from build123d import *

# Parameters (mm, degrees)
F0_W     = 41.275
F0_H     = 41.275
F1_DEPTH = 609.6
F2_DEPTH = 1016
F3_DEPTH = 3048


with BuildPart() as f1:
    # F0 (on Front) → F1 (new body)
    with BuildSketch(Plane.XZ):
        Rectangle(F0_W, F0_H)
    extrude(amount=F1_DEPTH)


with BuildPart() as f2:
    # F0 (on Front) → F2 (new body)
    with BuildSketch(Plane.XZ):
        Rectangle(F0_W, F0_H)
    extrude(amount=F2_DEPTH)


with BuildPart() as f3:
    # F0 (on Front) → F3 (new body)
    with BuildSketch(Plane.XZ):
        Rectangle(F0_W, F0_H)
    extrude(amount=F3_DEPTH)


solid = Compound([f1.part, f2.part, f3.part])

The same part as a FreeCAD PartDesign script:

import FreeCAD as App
import Part
import Sketcher
Q = App.Units.Quantity

doc = App.newDocument("Part")
body = doc.addObject("PartDesign::Body", "Body")

# Sketch on XZ plane
sketch1 = body.newObject("Sketcher::SketchObject", "Sketch")
sketch1.AttachmentSupport = (doc.getObject("XZ_Plane"), [""])
sketch1.MapMode = "FlatFace"
sketch1.addGeometry([
    Part.LineSegment(App.Vector(-21, 21, 0), App.Vector(-21, -21, 0)),
    Part.LineSegment(App.Vector(-21, -21, 0), App.Vector(21, -21, 0)),
    Part.LineSegment(App.Vector(21, -21, 0), App.Vector(21, 21, 0)),
    Part.LineSegment(App.Vector(21, 21, 0), App.Vector(-21, 21, 0)),
], False)
sketch1.addConstraint([
    Sketcher.Constraint("Coincident", 0, 2, 1, 1),
    Sketcher.Constraint("Coincident", 1, 2, 2, 1),
    Sketcher.Constraint("Coincident", 2, 2, 3, 1),
    Sketcher.Constraint("Coincident", 3, 2, 0, 1),
    Sketcher.Constraint("Vertical", 0),
    Sketcher.Constraint("Horizontal", 1),
    Sketcher.Constraint("Vertical", 2),
    Sketcher.Constraint("Horizontal", 3),
    Sketcher.Constraint("Symmetric", 0, 2, 2, 2, -1, 1),
    Sketcher.Constraint("Equal", 3, 0),
    Sketcher.Constraint("DistanceX", 1, 1, 1, 2, Q("1.625 in")),
])
pad1 = body.newObject("PartDesign::Pad", "Pad")
pad1.Profile = sketch1
pad1.Length = Q("24 in")
body2 = doc.addObject("PartDesign::Body", "Body001")

# Sketch on XZ plane
sketch2 = body2.newObject("Sketcher::SketchObject", "Sketch001")
sketch2.AttachmentSupport = (doc.getObject("XZ_Plane001"), [""])
sketch2.MapMode = "FlatFace"
sketch2.addGeometry([
    Part.LineSegment(App.Vector(-21, 21, 0), App.Vector(-21, -21, 0)),
    Part.LineSegment(App.Vector(-21, -21, 0), App.Vector(21, -21, 0)),
    Part.LineSegment(App.Vector(21, -21, 0), App.Vector(21, 21, 0)),
    Part.LineSegment(App.Vector(21, 21, 0), App.Vector(-21, 21, 0)),
], False)
sketch2.addConstraint([
    Sketcher.Constraint("Coincident", 0, 2, 1, 1),
    Sketcher.Constraint("Coincident", 1, 2, 2, 1),
    Sketcher.Constraint("Coincident", 2, 2, 3, 1),
    Sketcher.Constraint("Coincident", 3, 2, 0, 1),
    Sketcher.Constraint("Vertical", 0),
    Sketcher.Constraint("Horizontal", 1),
    Sketcher.Constraint("Vertical", 2),
    Sketcher.Constraint("Horizontal", 3),
    Sketcher.Constraint("Symmetric", 0, 2, 2, 2, -1, 1),
    Sketcher.Constraint("Equal", 3, 0),
    Sketcher.Constraint("DistanceX", 1, 1, 1, 2, Q("1.625 in")),
])
pad2 = body2.newObject("PartDesign::Pad", "Pad001")
pad2.Profile = sketch2
pad2.Length = Q("40 in")
body3 = doc.addObject("PartDesign::Body", "Body002")

# Sketch on XZ plane
sketch3 = body3.newObject("Sketcher::SketchObject", "Sketch002")
sketch3.AttachmentSupport = (doc.getObject("XZ_Plane002"), [""])
sketch3.MapMode = "FlatFace"
sketch3.addGeometry([
    Part.LineSegment(App.Vector(-21, 21, 0), App.Vector(-21, -21, 0)),
    Part.LineSegment(App.Vector(-21, -21, 0), App.Vector(21, -21, 0)),
    Part.LineSegment(App.Vector(21, -21, 0), App.Vector(21, 21, 0)),
    Part.LineSegment(App.Vector(21, 21, 0), App.Vector(-21, 21, 0)),
], False)
sketch3.addConstraint([
    Sketcher.Constraint("Coincident", 0, 2, 1, 1),
    Sketcher.Constraint("Coincident", 1, 2, 2, 1),
    Sketcher.Constraint("Coincident", 2, 2, 3, 1),
    Sketcher.Constraint("Coincident", 3, 2, 0, 1),
    Sketcher.Constraint("Vertical", 0),
    Sketcher.Constraint("Horizontal", 1),
    Sketcher.Constraint("Vertical", 2),
    Sketcher.Constraint("Horizontal", 3),
    Sketcher.Constraint("Symmetric", 0, 2, 2, 2, -1, 1),
    Sketcher.Constraint("Equal", 3, 0),
    Sketcher.Constraint("DistanceX", 1, 1, 1, 2, Q("1.625 in")),
])
pad3 = body3.newObject("PartDesign::Pad", "Pad002")
pad3.Profile = sketch3
pad3.Length = Q("120 in")

doc.recompute()
